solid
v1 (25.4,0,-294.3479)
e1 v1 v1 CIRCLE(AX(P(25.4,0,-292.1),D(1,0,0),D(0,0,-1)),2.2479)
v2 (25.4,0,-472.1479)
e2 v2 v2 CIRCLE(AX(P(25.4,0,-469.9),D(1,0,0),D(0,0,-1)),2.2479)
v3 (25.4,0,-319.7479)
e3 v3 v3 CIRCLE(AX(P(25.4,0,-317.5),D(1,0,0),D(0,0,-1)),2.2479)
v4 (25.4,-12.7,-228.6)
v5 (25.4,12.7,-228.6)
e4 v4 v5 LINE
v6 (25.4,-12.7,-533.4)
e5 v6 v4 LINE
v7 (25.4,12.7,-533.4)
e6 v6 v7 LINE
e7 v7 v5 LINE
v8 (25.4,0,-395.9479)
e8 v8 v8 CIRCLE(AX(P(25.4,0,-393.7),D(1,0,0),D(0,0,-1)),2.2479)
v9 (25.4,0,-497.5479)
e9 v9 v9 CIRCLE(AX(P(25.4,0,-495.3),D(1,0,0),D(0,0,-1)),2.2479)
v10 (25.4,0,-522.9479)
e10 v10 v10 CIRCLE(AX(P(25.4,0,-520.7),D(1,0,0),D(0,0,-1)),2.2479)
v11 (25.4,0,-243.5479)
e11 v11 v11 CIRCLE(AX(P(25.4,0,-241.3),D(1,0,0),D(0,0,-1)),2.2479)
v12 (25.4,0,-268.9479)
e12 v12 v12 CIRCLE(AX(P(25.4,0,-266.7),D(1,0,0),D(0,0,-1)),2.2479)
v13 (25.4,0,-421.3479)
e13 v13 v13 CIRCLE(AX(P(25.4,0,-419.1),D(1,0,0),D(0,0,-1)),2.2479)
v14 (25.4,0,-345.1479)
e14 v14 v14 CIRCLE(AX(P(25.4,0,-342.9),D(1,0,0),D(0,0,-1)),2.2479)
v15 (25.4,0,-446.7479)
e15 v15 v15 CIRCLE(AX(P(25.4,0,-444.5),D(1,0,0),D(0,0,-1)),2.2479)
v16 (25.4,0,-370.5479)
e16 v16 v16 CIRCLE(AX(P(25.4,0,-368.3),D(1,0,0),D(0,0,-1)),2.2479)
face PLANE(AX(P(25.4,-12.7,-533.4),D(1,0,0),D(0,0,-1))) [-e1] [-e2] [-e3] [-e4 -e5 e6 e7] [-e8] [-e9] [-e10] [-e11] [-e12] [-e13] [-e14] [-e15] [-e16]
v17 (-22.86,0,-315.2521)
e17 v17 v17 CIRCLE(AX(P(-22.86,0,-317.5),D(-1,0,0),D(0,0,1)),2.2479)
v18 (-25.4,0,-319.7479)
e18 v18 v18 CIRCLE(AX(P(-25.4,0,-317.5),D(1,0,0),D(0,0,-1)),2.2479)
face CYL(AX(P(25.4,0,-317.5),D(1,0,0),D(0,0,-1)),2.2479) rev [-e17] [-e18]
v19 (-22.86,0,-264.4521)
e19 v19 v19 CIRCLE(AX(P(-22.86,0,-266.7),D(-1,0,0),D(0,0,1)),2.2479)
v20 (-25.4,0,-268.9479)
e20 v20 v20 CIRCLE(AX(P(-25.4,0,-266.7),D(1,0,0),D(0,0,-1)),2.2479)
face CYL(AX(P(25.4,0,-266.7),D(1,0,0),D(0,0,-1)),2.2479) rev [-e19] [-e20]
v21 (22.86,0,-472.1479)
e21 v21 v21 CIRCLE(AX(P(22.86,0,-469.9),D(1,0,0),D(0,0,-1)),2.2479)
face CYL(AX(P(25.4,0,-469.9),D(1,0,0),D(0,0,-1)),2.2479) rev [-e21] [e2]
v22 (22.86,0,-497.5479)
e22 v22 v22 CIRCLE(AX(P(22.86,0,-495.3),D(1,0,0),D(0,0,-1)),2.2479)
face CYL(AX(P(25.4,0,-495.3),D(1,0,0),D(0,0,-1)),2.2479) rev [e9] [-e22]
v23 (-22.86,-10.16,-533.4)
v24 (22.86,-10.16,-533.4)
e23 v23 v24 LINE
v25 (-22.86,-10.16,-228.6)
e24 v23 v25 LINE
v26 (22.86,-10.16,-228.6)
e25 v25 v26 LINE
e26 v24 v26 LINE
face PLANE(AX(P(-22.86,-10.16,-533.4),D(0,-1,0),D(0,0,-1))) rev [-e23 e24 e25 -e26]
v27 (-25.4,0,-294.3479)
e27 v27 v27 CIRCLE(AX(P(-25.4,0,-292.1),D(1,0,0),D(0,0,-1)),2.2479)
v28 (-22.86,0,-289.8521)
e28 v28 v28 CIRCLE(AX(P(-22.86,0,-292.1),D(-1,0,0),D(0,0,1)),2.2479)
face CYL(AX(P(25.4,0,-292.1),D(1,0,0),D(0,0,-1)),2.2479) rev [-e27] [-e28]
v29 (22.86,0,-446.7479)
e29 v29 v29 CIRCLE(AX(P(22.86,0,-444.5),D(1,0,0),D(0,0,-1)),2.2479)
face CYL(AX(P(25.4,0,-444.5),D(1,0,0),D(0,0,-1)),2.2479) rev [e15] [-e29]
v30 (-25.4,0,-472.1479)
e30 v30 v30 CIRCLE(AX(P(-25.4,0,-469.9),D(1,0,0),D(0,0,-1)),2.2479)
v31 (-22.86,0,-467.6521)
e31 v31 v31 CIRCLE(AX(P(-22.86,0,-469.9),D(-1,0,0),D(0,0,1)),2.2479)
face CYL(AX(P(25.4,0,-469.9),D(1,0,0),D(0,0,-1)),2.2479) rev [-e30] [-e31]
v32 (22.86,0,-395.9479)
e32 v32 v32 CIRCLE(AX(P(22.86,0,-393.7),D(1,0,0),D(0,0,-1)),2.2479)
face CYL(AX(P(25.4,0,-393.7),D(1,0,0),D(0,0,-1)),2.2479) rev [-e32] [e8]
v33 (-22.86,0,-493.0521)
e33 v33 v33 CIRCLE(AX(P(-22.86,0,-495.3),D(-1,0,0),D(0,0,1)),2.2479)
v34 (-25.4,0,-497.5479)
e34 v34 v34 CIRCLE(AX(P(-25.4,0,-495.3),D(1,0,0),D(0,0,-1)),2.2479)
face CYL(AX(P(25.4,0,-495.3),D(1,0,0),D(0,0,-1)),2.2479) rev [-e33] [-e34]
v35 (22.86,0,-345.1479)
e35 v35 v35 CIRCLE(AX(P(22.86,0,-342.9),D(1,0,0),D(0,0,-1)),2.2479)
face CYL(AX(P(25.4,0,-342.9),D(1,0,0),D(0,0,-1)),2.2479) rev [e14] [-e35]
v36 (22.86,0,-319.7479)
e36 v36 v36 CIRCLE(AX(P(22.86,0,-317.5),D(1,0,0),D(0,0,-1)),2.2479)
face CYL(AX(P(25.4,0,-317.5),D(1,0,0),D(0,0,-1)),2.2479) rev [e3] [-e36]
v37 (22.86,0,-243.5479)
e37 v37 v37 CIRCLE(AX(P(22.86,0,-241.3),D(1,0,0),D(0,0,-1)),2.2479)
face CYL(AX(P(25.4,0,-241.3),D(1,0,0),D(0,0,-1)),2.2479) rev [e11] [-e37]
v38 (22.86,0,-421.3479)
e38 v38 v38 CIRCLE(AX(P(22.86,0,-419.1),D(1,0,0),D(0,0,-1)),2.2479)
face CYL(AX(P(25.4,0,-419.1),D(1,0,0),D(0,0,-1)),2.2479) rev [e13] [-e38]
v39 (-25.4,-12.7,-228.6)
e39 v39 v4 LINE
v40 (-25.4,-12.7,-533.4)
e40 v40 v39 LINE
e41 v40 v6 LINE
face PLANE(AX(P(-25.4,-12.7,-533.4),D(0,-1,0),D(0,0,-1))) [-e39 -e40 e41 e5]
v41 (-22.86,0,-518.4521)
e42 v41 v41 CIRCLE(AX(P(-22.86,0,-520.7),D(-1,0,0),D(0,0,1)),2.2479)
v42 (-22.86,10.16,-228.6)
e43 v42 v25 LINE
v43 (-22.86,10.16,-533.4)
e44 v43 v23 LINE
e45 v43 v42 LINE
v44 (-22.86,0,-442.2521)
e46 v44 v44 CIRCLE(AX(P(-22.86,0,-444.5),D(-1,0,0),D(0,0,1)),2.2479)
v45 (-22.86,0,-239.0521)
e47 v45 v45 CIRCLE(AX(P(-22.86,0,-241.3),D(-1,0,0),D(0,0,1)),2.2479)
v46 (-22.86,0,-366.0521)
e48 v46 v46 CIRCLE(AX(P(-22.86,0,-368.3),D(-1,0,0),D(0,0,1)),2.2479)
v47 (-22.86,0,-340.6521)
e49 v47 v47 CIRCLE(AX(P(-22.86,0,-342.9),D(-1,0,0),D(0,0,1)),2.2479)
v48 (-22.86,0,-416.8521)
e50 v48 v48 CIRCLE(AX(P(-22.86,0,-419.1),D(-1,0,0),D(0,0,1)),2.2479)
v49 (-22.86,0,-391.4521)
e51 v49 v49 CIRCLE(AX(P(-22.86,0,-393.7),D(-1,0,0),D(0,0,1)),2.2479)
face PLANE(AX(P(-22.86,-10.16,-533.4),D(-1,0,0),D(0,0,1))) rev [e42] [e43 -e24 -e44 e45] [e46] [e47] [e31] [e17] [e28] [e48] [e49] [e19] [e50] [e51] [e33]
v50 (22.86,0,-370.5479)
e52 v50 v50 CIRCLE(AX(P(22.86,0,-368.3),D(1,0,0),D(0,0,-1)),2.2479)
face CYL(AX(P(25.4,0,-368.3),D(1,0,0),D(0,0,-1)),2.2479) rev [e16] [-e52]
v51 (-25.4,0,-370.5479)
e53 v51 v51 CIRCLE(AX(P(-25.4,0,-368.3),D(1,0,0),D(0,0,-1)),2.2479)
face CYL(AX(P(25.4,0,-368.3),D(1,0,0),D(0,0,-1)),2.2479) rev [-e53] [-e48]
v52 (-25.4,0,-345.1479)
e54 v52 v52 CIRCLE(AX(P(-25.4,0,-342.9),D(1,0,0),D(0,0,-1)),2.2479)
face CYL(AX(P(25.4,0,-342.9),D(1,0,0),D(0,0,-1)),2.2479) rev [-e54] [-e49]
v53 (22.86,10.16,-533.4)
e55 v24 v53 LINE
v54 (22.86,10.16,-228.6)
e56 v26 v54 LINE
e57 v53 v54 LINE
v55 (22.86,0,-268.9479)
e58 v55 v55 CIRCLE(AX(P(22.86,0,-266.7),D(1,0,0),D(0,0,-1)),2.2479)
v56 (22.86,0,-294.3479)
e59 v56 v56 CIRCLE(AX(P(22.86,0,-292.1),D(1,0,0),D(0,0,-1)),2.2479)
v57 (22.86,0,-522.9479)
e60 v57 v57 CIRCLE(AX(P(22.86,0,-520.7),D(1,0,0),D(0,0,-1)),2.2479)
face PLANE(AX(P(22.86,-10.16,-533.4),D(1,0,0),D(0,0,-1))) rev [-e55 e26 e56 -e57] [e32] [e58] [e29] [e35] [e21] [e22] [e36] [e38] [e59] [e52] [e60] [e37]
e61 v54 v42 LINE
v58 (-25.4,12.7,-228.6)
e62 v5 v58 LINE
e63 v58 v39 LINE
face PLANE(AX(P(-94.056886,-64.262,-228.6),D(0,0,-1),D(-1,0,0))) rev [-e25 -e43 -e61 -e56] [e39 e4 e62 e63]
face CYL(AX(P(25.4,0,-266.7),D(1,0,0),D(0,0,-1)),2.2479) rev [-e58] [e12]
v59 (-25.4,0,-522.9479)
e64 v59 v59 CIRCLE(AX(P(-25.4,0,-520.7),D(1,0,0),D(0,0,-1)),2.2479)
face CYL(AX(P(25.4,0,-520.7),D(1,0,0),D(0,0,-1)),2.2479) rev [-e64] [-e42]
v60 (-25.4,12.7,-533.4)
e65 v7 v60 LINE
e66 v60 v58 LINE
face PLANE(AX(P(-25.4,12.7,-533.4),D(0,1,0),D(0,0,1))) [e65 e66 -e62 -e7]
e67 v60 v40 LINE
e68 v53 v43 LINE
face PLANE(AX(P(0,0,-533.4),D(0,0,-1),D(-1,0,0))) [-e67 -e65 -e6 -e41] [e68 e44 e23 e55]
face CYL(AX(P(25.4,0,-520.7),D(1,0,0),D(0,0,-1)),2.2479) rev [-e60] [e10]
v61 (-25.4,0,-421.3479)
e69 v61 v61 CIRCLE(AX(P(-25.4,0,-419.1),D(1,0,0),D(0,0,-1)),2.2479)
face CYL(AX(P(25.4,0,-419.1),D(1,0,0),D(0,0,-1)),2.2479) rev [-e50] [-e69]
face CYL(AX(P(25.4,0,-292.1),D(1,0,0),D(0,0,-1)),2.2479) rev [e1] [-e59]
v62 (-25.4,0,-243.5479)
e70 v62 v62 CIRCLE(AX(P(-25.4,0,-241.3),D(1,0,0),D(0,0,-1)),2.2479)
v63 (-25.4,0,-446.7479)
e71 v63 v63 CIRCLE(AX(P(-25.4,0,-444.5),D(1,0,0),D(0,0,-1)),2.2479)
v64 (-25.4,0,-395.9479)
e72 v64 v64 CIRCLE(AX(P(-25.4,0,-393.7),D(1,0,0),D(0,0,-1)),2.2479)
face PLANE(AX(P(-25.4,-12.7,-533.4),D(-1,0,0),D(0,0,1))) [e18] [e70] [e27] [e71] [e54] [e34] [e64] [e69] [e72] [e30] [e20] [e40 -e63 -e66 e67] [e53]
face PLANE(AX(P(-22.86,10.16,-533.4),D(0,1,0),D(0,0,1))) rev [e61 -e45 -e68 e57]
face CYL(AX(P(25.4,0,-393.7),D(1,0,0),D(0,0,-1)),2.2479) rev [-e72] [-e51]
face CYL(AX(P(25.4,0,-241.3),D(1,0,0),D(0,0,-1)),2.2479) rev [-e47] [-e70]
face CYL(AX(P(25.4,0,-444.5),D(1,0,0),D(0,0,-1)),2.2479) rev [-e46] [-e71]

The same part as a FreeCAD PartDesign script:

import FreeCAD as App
import Part
import Sketcher

V = App.Vector
Q = App.Units.Quantity

doc = App.newDocument("Part")
body = doc.addObject("PartDesign::Body", "Body")

sketch1 = doc.addObject("Sketcher::SketchObject", "Sketch")
body.addObject(sketch1)
sketch1.AttachmentSupport = (doc.XY_Plane, [""])
sketch1.MapMode = "FlatFace"
sketch1.addGeometry([
    Part.LineSegment(V(-25.4, 12.7, 0), V(-25.4, -12.7, 0)),
    Part.LineSegment(V(-25.4, -12.7, 0), V(25.4, -12.7, 0)),
    Part.LineSegment(V(25.4, -12.7, 0), V(25.4, 12.7, 0)),
    Part.LineSegment(V(25.4, 12.7, 0), V(-25.4, 12.7, 0)),
    Part.LineSegment(V(22.86, -10.16, 0), V(-22.86, -10.16, 0)),
    Part.LineSegment(V(-22.86, -10.16, 0), V(-22.86, 10.16, 0)),
    Part.LineSegment(V(-22.86, 10.16, 0), V(22.86, 10.16, 0)),
    Part.LineSegment(V(22.86, 10.16, 0), V(22.86, -10.16, 0)),
], False)
sketch1.addConstraint([
    Sketcher.Constraint("Coincident", 0, 2, 1, 1),
    Sketcher.Constraint("Coincident", 1, 2, 2, 1),
    Sketcher.Constraint("Coincident", 2, 2, 3, 1),
    Sketcher.Constraint("Coincident", 3, 2, 0, 1),
    Sketcher.Constraint("Coincident", 4, 2, 5, 1),
    Sketcher.Constraint("Coincident", 5, 2, 6, 1),
    Sketcher.Constraint("Coincident", 6, 2, 7, 1),
    Sketcher.Constraint("Coincident", 7, 2, 4, 1),
    Sketcher.Constraint("Vertical", 0),
    Sketcher.Constraint("Horizontal", 1),
    Sketcher.Constraint("Vertical", 2),
    Sketcher.Constraint("Horizontal", 3),
    Sketcher.Constraint("Horizontal", 4),
    Sketcher.Constraint("Vertical", 5),
    Sketcher.Constraint("Horizontal", 6),
    Sketcher.Constraint("Vertical", 7),
    Sketcher.Constraint("Symmetric", 0, 2, 2, 2, -1, 1),
    Sketcher.Constraint("Symmetric", 4, 2, 6, 2, -1, 1),
    Sketcher.Constraint("DistanceX", 1, 1, 1, 2, Q("2 in")),
    Sketcher.Constraint("DistanceY", 0, 2, 0, 1, Q("1 in")),
    Sketcher.Constraint("DistanceX", 4, 2, 4, 1, Q("1.8 in")),
    Sketcher.Constraint("DistanceY", 5, 1, 5, 2, Q("0.8 in")),
])
pad1 = doc.addObject("PartDesign::Pad", "Pad")
body.addObject(pad1)
pad1.Profile = sketch1
pad1.Length = Q("21 in")
pad1.Reversed = True

sketch2 = doc.addObject("Sketcher::SketchObject", "Sketch001")
body.addObject(sketch2)
sketch2.AttachmentSupport = (doc.YZ_Plane, [""])
sketch2.MapMode = "FlatFace"
sketch2.AttachmentOffset = App.Placement(V(0, 0, 1 * 25.4), App.Rotation())
sketch2.addGeometry([
    Part.Circle(V(0, -12.7, 0), V(0, 0, 1), 2.2479),
    Part.Circle(V(0, -38.1, 0), V(0, 0, 1), 2.2479),
    Part.Circle(V(0, -63.5, 0), V(0, 0, 1), 2.2479),
    Part.Circle(V(0, -88.9, 0), V(0, 0, 1), 2.2479),
    Part.Circle(V(0, -114.3, 0), V(0, 0, 1), 2.2479),
    Part.Circle(V(0, -139.7, 0), V(0, 0, 1), 2.2479),
    Part.Circle(V(0, -165.1, 0), V(0, 0, 1), 2.2479),
    Part.Circle(V(0, -190.5, 0), V(0, 0, 1), 2.2479),
    Part.Circle(V(0, -215.9, 0), V(0, 0, 1), 2.2479),
    Part.Circle(V(0, -241.3, 0), V(0, 0, 1), 2.2479),
    Part.Circle(V(0, -266.7, 0), V(0, 0, 1), 2.2479),
    Part.Circle(V(0, -292.1, 0), V(0, 0, 1), 2.2479),
    Part.Circle(V(0, -317.5, 0), V(0, 0, 1), 2.2479),
    Part.Circle(V(0, -342.9, 0), V(0, 0, 1), 2.2479),
    Part.Circle(V(0, -368.3, 0), V(0, 0, 1), 2.2479),
    Part.Circle(V(0, -393.7, 0), V(0, 0, 1), 2.2479),
    Part.Circle(V(0, -419.1, 0), V(0, 0, 1), 2.2479),
    Part.Circle(V(0, -444.5, 0), V(0, 0, 1), 2.2479),
    Part.Circle(V(0, -469.9, 0), V(0, 0, 1), 2.2479),
    Part.Circle(V(0, -495.3, 0), V(0, 0, 1), 2.2479),
    Part.Circle(V(0, -520.7, 0), V(0, 0, 1), 2.2479),
], False)
sketch2.addConstraint([
    Sketcher.Constraint("Equal", 0, 1),
    Sketcher.Constraint("Equal", 1, 2),
    Sketcher.Constraint("Equal", 2, 3),
    Sketcher.Constraint("Equal", 3, 4),
    Sketcher.Constraint("Equal", 4, 5),
    Sketcher.Constraint("Equal", 5, 6),
    Sketcher.Constraint("Equal", 6, 7),
    Sketcher.Constraint("Equal", 7, 8),
    Sketcher.Constraint("Equal", 8, 9),
    Sketcher.Constraint("Equal", 9, 10),
    Sketcher.Constraint("Equal", 10, 11),
    Sketcher.Constraint("Equal", 11, 12),
    Sketcher.Constraint("Equal", 12, 13),
    Sketcher.Constraint("Equal", 13, 14),
    Sketcher.Constraint("Equal", 14, 15),
    Sketcher.Constraint("Equal", 15, 16),
    Sketcher.Constraint("Equal", 16, 17),
    Sketcher.Constraint("Equal", 17, 18),
    Sketcher.Constraint("Equal", 18, 19),
    Sketcher.Constraint("Equal", 19, 20),
    Sketcher.Constraint("PointOnObject", 0, 3, -2),
    Sketcher.Constraint("PointOnObject", 1, 3, -2),
    Sketcher.Constraint("PointOnObject", 2, 3, -2),
    Sketcher.Constraint("PointOnObject", 3, 3, -2),
    Sketcher.Constraint("PointOnObject", 4, 3, -2),
    Sketcher.Constraint("PointOnObject", 5, 3, -2),
    Sketcher.Constraint("PointOnObject", 6, 3, -2),
    Sketcher.Constraint("PointOnObject", 7, 3, -2),
    Sketcher.Constraint("PointOnObject", 8, 3, -2),
    Sketcher.Constraint("PointOnObject", 9, 3, -2),
    Sketcher.Constraint("PointOnObject", 10, 3, -2),
    Sketcher.Constraint("PointOnObject", 11, 3, -2),
    Sketcher.Constraint("PointOnObject", 12, 3, -2),
    Sketcher.Constraint("PointOnObject", 13, 3, -2),
    Sketcher.Constraint("PointOnObject", 14, 3, -2),
    Sketcher.Constraint("PointOnObject", 15, 3, -2),
    Sketcher.Constraint("PointOnObject", 16, 3, -2),
    Sketcher.Constraint("PointOnObject", 17, 3, -2),
    Sketcher.Constraint("PointOnObject", 18, 3, -2),
    Sketcher.Constraint("PointOnObject", 19, 3, -2),
    Sketcher.Constraint("PointOnObject", 20, 3, -2),
    Sketcher.Constraint("Diameter", 0, Q("0.177 in")),
    Sketcher.Constraint("DistanceY", 1, 3, 0, 3, Q("1 in")),
    Sketcher.Constraint("DistanceY", 2, 3, 1, 3, Q("1 in")),
    Sketcher.Constraint("DistanceY", 3, 3, 2, 3, Q("1 in")),
    Sketcher.Constraint("DistanceY", 4, 3, 3, 3, Q("1 in")),
    Sketcher.Constraint("DistanceY", 5, 3, 4, 3, Q("1 in")),
    Sketcher.Constraint("DistanceY", 6, 3, 5, 3, Q("1 in")),
    Sketcher.Constraint("DistanceY", 7, 3, 6, 3, Q("1 in")),
    Sketcher.Constraint("DistanceY", 8, 3, 7, 3, Q("1 in")),
    Sketcher.Constraint("DistanceY", 9, 3, 8, 3, Q("1 in")),
    Sketcher.Constraint("DistanceY", 10, 3, 9, 3, Q("1 in")),
    Sketcher.Constraint("DistanceY", 11, 3, 10, 3, Q("1 in")),
    Sketcher.Constraint("DistanceY", 12, 3, 11, 3, Q("1 in")),
    Sketcher.Constraint("DistanceY", 13, 3, 12, 3, Q("1 in")),
    Sketcher.Constraint("DistanceY", 14, 3, 13, 3, Q("1 in")),
    Sketcher.Constraint("DistanceY", 15, 3, 14, 3, Q("1 in")),
    Sketcher.Constraint("DistanceY", 16, 3, 15, 3, Q("1 in")),
    Sketcher.Constraint("DistanceY", 17, 3, 16, 3, Q("1 in")),
    Sketcher.Constraint("DistanceY", 18, 3, 17, 3, Q("1 in")),
    Sketcher.Constraint("DistanceY", 19, 3, 18, 3, Q("1 in")),
    Sketcher.Constraint("DistanceY", 20, 3, 19, 3, Q("1 in")),
    Sketcher.Constraint("DistanceY", 0, 3, -1, 1, Q("0.5 in")),
])
doc.recompute()
hole = doc.addObject("PartDesign::Hole", "Hole")
body.addObject(hole)
hole.Profile = sketch2
hole.ThreadType = "None"
hole.Diameter = Q("0.177 in")
hole.DepthType = "ThroughAll"

sketch3 = doc.addObject("Sketcher::SketchObject", "Sketch002")
body.addObject(sketch3)
sketch3.AttachmentSupport = (doc.XZ_Plane, [""])
sketch3.MapMode = "FlatFace"
sketch3.AttachmentOffset = App.Placement(V(0, 0, -0.5 * 25.4), App.Rotation())
sketch3.addGeometry([
    Part.LineSegment(V(135.513081, -228.6, 0), V(-94.056886, -228.6, 0)),
    Part.LineSegment(V(-94.056886, -228.6, 0), V(-94.056886, 17.64137, 0)),
    Part.LineSegment(V(-94.056886, 17.64137, 0), V(135.513081, 17.64137, 0)),
    Part.LineSegment(V(135.513081, 17.64137, 0), V(135.513081, -228.6, 0)),
], False)
sketch3.addConstraint([
    Sketcher.Constraint("Coincident", 0, 2, 1, 1),
    Sketcher.Constraint("Coincident", 1, 2, 2, 1),
    Sketcher.Constraint("Coincident", 2, 2, 3, 1),
    Sketcher.Constraint("Coincident", 3, 2, 0, 1),
    Sketcher.Constraint("Horizontal", 0),
    Sketcher.Constraint("Vertical", 1),
    Sketcher.Constraint("Horizontal", 2),
    Sketcher.Constraint("Vertical", 3),
    Sketcher.Constraint("DistanceY", 0, 2, -1, 1, Q("9 in")),
    Sketcher.Constraint("DistanceY", 1, 1, 1, 2, 246.24137),
    Sketcher.Constraint("DistanceX", 0, 2, 0, 1, 229.569967),
    Sketcher.Constraint("DistanceX", -1, 1, 2, 2, 135.513081),
])
pocket1 = doc.addObject("PartDesign::Pocket", "Pocket")
body.addObject(pocket1)
pocket1.Profile = sketch3
pocket1.Length = Q("3.03 in")
pocket1.Reversed = True

doc.recompute()
